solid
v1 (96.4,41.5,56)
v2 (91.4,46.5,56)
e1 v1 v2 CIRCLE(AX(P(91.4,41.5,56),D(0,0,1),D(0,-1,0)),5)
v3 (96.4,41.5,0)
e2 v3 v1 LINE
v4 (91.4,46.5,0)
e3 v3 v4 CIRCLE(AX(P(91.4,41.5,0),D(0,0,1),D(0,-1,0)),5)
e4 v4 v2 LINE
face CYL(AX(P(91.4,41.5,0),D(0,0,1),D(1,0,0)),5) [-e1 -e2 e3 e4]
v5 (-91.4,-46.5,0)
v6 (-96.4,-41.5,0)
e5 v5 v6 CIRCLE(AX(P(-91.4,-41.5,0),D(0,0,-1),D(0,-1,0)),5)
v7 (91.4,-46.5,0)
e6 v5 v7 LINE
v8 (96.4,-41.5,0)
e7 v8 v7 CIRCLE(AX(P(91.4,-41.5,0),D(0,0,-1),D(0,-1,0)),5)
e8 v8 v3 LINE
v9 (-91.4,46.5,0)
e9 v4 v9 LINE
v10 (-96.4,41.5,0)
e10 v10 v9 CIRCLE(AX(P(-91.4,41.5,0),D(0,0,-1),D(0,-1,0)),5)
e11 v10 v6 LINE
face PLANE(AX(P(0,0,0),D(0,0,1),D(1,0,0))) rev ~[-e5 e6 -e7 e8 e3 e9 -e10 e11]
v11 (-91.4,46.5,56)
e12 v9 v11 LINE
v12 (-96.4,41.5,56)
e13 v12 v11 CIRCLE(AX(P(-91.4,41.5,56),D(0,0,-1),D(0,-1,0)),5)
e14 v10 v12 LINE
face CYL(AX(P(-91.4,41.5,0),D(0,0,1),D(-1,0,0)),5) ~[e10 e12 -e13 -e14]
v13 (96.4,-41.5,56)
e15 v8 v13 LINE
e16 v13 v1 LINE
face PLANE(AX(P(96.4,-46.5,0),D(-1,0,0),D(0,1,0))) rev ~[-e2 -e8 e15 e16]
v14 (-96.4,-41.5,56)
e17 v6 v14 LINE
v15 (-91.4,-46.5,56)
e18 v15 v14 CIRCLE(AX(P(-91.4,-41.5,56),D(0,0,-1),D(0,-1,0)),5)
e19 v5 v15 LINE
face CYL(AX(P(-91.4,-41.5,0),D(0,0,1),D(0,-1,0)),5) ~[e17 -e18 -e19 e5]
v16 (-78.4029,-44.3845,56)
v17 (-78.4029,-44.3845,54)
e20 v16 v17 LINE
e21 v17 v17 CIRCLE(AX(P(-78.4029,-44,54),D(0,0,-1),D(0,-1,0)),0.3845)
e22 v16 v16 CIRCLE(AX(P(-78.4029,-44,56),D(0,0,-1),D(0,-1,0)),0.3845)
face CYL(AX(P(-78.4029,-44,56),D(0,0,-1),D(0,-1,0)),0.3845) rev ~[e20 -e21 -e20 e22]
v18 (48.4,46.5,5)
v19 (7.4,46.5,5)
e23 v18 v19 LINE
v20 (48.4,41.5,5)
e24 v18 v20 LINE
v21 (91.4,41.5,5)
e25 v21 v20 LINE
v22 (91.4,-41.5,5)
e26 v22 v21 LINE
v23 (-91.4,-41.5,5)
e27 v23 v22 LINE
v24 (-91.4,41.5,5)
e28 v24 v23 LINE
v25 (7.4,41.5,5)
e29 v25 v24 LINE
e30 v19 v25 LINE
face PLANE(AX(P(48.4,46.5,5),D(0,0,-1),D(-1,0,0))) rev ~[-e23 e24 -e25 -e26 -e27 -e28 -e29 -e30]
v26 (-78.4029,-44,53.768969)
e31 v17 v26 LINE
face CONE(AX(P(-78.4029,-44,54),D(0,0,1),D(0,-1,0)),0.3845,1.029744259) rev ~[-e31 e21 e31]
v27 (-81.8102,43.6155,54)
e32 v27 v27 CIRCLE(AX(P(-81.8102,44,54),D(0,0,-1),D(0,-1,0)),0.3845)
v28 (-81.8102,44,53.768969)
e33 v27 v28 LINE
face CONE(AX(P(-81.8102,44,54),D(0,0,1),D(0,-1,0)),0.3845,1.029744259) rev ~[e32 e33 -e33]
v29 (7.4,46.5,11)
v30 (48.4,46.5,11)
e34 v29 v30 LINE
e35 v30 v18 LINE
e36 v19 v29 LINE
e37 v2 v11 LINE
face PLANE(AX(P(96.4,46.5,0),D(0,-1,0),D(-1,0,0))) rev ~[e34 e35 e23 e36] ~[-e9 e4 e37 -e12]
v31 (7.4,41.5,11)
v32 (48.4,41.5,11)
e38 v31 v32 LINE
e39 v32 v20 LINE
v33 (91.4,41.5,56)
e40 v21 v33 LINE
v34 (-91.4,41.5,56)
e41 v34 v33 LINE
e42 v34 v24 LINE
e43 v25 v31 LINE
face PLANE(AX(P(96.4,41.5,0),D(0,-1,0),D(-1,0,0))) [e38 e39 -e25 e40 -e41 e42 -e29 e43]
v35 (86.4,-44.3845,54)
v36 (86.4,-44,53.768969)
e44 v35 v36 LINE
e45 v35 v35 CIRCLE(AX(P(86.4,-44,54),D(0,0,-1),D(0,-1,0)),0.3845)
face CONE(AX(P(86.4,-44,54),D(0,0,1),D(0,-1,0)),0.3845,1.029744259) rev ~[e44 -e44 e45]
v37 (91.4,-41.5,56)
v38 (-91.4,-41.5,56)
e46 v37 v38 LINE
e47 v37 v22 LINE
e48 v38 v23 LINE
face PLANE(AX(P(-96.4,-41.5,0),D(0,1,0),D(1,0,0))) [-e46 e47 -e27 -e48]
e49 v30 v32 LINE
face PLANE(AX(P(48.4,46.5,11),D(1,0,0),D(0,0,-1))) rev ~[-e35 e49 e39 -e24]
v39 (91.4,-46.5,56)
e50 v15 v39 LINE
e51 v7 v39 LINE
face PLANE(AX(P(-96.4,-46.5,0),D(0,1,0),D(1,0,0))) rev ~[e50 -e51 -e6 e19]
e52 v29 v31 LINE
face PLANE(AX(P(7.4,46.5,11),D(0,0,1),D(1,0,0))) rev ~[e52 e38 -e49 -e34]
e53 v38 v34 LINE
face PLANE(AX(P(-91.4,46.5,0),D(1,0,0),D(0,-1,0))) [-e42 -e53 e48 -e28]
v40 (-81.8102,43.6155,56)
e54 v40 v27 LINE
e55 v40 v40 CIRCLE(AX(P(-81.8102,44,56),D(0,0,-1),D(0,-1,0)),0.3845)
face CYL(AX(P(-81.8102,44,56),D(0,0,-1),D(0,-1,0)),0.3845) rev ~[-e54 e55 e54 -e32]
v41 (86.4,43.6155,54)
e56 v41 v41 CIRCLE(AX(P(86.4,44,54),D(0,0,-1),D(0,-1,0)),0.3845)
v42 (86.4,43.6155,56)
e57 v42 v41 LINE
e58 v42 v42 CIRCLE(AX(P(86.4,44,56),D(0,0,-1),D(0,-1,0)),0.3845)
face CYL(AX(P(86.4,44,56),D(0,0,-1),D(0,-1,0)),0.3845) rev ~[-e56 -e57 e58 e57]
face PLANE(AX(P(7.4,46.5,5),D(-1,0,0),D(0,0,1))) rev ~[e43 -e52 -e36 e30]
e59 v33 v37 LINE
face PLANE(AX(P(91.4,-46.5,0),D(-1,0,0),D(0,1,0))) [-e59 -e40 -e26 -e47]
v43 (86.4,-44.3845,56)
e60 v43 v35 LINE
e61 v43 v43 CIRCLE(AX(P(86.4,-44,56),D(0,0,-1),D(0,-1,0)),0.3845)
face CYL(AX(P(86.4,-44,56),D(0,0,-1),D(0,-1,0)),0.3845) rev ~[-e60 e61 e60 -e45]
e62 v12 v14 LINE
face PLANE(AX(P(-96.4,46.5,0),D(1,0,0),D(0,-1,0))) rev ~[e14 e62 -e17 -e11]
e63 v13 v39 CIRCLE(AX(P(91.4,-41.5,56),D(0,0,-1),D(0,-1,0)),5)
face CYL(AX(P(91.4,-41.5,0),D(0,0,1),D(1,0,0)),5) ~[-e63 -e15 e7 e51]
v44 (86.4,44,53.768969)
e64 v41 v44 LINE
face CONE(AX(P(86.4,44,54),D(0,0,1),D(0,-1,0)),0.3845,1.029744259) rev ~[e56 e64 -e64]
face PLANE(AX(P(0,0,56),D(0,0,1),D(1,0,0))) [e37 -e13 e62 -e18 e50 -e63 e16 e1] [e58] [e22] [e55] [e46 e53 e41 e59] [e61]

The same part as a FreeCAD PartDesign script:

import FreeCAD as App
import Part
import Sketcher

V = App.Vector
Q = App.Units.Quantity


def edges_at(feature, points):
    """Names of the edges that pass closest to the given points."""
    edges = feature.Shape.Edges
    near = lambda p: min(range(len(edges)), key=lambda i: edges[i].distToShape(Part.Vertex(*p))[0])
    return sorted({f"Edge{near(p) + 1}" for p in points})


def faces_at(feature, points):
    """Names of the faces that lie closest to the given points."""
    faces = feature.Shape.Faces
    near = lambda p: min(range(len(faces)), key=lambda i: faces[i].distToShape(Part.Vertex(*p))[0])
    return sorted({f"Face{near(p) + 1}" for p in points})

doc = App.newDocument("Part")
body = doc.addObject("PartDesign::Body", "Body")

sketch1 = doc.addObject("Sketcher::SketchObject", "Sketch")
body.addObject(sketch1)
sketch1.AttachmentSupport = (doc.XY_Plane, [""])
sketch1.MapMode = "FlatFace"
sketch1.addGeometry([
    Part.LineSegment(V(96, -46, 0), V(96, 46, 0)),
    Part.LineSegment(V(96, 46, 0), V(-96, 46, 0)),
    Part.LineSegment(V(-96, 46, 0), V(-96, -46, 0)),
    Part.LineSegment(V(-96, -46, 0), V(96, -46, 0)),
], False)
sketch1.addConstraint([
    Sketcher.Constraint("Coincident", 0, 2, 1, 1),
    Sketcher.Constraint("Coincident", 1, 2, 2, 1),
    Sketcher.Constraint("Coincident", 2, 2, 3, 1),
    Sketcher.Constraint("Coincident", 3, 2, 0, 1),
    Sketcher.Constraint("Vertical", 0),
    Sketcher.Constraint("Horizontal", 1),
    Sketcher.Constraint("Vertical", 2),
    Sketcher.Constraint("Horizontal", 3),
    Sketcher.Constraint("Symmetric", 0, 2, 2, 2, -1, 1),
    Sketcher.Constraint("DistanceY", 0, 1, 0, 2, Q("93 mm")),
    Sketcher.Constraint("DistanceX", 1, 2, 1, 1, Q("192.8 mm")),
])
pad1 = doc.addObject("PartDesign::Pad", "Pad")
body.addObject(pad1)
pad1.Profile = sketch1
pad1.Length = 56
doc.recompute()

thickness = doc.addObject("PartDesign::Thickness", "Thickness")
body.addObject(thickness)
thickness.Base = (pad1, faces_at(pad1, [(-32.133, 15.5, 56)]))
thickness.Value = 5
thickness.Reversed = True
thickness.Join = "Intersection"
doc.recompute()

fillet = doc.addObject("PartDesign::Fillet", "Fillet")
body.addObject(fillet)
fillet.Base = (thickness, edges_at(thickness, [(96.4, 46.5, 28)]))
fillet.Radius = 5
doc.recompute()

fillet2 = doc.addObject("PartDesign::Fillet", "Fillet001")
body.addObject(fillet2)
fillet2.Base = (fillet, edges_at(fillet, [(96.4, -46.5, 28)]))
fillet2.Radius = 5
doc.recompute()

fillet3 = doc.addObject("PartDesign::Fillet", "Fillet002")
body.addObject(fillet3)
fillet3.Base = (fillet2, edges_at(fillet2, [(-96.4, -46.5, 28)]))
fillet3.Radius = 5
doc.recompute()

fillet4 = doc.addObject("PartDesign::Fillet", "Fillet003")
body.addObject(fillet4)
fillet4.Base = (fillet3, edges_at(fillet3, [(-96.4, 46.5, 28)]))
fillet4.Radius = 5

sketch2 = doc.addObject("Sketcher::SketchObject", "Sketch001")
body.addObject(sketch2)
sketch2.AttachmentSupport = (doc.XZ_Plane, [""])
sketch2.MapMode = "FlatFace"
sketch2.AttachmentOffset = App.Placement(V(0, 0, -46.5), App.Rotation())
sketch2.addGeometry([
    Part.LineSegment(V(48, 11, 0), V(48, 5, 0)),
    Part.LineSegment(V(48, 5, 0), V(7, 5, 0)),
    Part.LineSegment(V(7, 5, 0), V(7, 11, 0)),
    Part.LineSegment(V(7, 11, 0), V(48, 11, 0)),
], False)
sketch2.addConstraint([
    Sketcher.Constraint("Coincident", 0, 2, 1, 1),
    Sketcher.Constraint("Coincident", 1, 2, 2, 1),
    Sketcher.Constraint("Coincident", 2, 2, 3, 1),
    Sketcher.Constraint("Coincident", 3, 2, 0, 1),
    Sketcher.Constraint("Vertical", 0),
    Sketcher.Constraint("Horizontal", 1),
    Sketcher.Constraint("Vertical", 2),
    Sketcher.Constraint("Horizontal", 3),
    Sketcher.Constraint("DistanceX", 1, 2, 1, 1, Q("41 mm")),
    Sketcher.Constraint("DistanceY", 0, 2, 0, 1, Q("6 mm")),
    Sketcher.Constraint("DistanceY", -1, 1, 0, 2, Q("5 mm")),
    Sketcher.Constraint("DistanceX", -1, 1, 0, 2, Q("48.4 mm")),
])
pocket1 = doc.addObject("PartDesign::Pocket", "Pocket")
body.addObject(pocket1)
pocket1.Profile = sketch2
pocket1.Length = 5
pocket1.Reversed = True

sketch3 = doc.addObject("Sketcher::SketchObject", "Sketch002")
body.addObject(sketch3)
sketch3.AttachmentSupport = (doc.XY_Plane, [""])
sketch3.MapMode = "FlatFace"
sketch3.AttachmentOffset = App.Placement(V(0, 0, 56), App.Rotation())
sketch3.addGeometry(Part.Circle(V(86.4, 44, 0), V(0, 0, 1), 0.38), False)
sketch3.addConstraint([
    Sketcher.Constraint("Diameter", 0, Q("0.769 mm")),
    Sketcher.Constraint("DistanceY", -1, 1, 0, 3, Q("44 mm")),
    Sketcher.Constraint("DistanceX", -1, 1, 0, 3, Q("86.4 mm")),
])
doc.recompute()
hole = doc.addObject("PartDesign::Hole", "Hole")
body.addObject(hole)
hole.Profile = sketch3
hole.ThreadType = "None"
hole.Diameter = 0.769
hole.DepthType = "Dimension"
hole.Depth = 2
hole.DrillPoint = "Angled"
hole.DrillPointAngle = 118

sketch4 = doc.addObject("Sketcher::SketchObject", "Sketch003")
body.addObject(sketch4)
sketch4.AttachmentSupport = (doc.XY_Plane, [""])
sketch4.MapMode = "FlatFace"
sketch4.AttachmentOffset = App.Placement(V(0, 0, 56), App.Rotation())
sketch4.addGeometry(Part.Circle(V(-81.81, 44, 0), V(0, 0, 1), 0.38), False)
sketch4.addConstraint([
    Sketcher.Constraint("Diameter", 0, Q("0.769 mm")),
    Sketcher.Constraint("DistanceY", -1, 1, 0, 3, Q("44 mm")),
    Sketcher.Constraint("DistanceX", 0, 3, -1, 1, Q("81.8102 mm")),
])
doc.recompute()
hole2 = doc.addObject("PartDesign::Hole", "Hole001")
body.addObject(hole2)
hole2.Profile = sketch4
hole2.ThreadType = "None"
hole2.Diameter = 0.769
hole2.DepthType = "Dimension"
hole2.Depth = 2
hole2.DrillPoint = "Angled"
hole2.DrillPointAngle = 118

sketch5 = doc.addObject("Sketcher::SketchObject", "Sketch004")
body.addObject(sketch5)
sketch5.AttachmentSupport = (doc.XY_Plane, [""])
sketch5.MapMode = "FlatFace"
sketch5.AttachmentOffset = App.Placement(V(0, 0, 56), App.Rotation())
sketch5.addGeometry(Part.Circle(V(-78.4, -44, 0), V(0, 0, 1), 0.38), False)
sketch5.addConstraint([
    Sketcher.Constraint("Diameter", 0, Q("0.769 mm")),
    Sketcher.Constraint("DistanceY", 0, 3, -1, 1, Q("44 mm")),
    Sketcher.Constraint("DistanceX", 0, 3, -1, 1, Q("78.403 mm")),
])
doc.recompute()
hole3 = doc.addObject("PartDesign::Hole", "Hole002")
body.addObject(hole3)
hole3.Profile = sketch5
hole3.ThreadType = "None"
hole3.Diameter = 0.769
hole3.DepthType = "Dimension"
hole3.Depth = 2
hole3.DrillPoint = "Angled"
hole3.DrillPointAngle = 118

sketch6 = doc.addObject("Sketcher::SketchObject", "Sketch005")
body.addObject(sketch6)
sketch6.AttachmentSupport = (doc.XY_Plane, [""])
sketch6.MapMode = "FlatFace"
sketch6.AttachmentOffset = App.Placement(V(0, 0, 56), App.Rotation())
sketch6.addGeometry(Part.Circle(V(86.4, -44, 0), V(0, 0, 1), 0.38), False)
sketch6.addConstraint([
    Sketcher.Constraint("Diameter", 0, Q("0.769 mm")),
    Sketcher.Constraint("DistanceY", 0, 3, -1, 1, Q("44 mm")),
    Sketcher.Constraint("DistanceX", -1, 1, 0, 3, Q("86.4 mm")),
])
doc.recompute()
hole4 = doc.addObject("PartDesign::Hole", "Hole003")
body.addObject(hole4)
hole4.Profile = sketch6
hole4.ThreadType = "None"
hole4.Diameter = 0.769
hole4.DepthType = "Dimension"
hole4.Depth = 2
hole4.DrillPoint = "Angled"
hole4.DrillPointAngle = 118

doc.recompute()
